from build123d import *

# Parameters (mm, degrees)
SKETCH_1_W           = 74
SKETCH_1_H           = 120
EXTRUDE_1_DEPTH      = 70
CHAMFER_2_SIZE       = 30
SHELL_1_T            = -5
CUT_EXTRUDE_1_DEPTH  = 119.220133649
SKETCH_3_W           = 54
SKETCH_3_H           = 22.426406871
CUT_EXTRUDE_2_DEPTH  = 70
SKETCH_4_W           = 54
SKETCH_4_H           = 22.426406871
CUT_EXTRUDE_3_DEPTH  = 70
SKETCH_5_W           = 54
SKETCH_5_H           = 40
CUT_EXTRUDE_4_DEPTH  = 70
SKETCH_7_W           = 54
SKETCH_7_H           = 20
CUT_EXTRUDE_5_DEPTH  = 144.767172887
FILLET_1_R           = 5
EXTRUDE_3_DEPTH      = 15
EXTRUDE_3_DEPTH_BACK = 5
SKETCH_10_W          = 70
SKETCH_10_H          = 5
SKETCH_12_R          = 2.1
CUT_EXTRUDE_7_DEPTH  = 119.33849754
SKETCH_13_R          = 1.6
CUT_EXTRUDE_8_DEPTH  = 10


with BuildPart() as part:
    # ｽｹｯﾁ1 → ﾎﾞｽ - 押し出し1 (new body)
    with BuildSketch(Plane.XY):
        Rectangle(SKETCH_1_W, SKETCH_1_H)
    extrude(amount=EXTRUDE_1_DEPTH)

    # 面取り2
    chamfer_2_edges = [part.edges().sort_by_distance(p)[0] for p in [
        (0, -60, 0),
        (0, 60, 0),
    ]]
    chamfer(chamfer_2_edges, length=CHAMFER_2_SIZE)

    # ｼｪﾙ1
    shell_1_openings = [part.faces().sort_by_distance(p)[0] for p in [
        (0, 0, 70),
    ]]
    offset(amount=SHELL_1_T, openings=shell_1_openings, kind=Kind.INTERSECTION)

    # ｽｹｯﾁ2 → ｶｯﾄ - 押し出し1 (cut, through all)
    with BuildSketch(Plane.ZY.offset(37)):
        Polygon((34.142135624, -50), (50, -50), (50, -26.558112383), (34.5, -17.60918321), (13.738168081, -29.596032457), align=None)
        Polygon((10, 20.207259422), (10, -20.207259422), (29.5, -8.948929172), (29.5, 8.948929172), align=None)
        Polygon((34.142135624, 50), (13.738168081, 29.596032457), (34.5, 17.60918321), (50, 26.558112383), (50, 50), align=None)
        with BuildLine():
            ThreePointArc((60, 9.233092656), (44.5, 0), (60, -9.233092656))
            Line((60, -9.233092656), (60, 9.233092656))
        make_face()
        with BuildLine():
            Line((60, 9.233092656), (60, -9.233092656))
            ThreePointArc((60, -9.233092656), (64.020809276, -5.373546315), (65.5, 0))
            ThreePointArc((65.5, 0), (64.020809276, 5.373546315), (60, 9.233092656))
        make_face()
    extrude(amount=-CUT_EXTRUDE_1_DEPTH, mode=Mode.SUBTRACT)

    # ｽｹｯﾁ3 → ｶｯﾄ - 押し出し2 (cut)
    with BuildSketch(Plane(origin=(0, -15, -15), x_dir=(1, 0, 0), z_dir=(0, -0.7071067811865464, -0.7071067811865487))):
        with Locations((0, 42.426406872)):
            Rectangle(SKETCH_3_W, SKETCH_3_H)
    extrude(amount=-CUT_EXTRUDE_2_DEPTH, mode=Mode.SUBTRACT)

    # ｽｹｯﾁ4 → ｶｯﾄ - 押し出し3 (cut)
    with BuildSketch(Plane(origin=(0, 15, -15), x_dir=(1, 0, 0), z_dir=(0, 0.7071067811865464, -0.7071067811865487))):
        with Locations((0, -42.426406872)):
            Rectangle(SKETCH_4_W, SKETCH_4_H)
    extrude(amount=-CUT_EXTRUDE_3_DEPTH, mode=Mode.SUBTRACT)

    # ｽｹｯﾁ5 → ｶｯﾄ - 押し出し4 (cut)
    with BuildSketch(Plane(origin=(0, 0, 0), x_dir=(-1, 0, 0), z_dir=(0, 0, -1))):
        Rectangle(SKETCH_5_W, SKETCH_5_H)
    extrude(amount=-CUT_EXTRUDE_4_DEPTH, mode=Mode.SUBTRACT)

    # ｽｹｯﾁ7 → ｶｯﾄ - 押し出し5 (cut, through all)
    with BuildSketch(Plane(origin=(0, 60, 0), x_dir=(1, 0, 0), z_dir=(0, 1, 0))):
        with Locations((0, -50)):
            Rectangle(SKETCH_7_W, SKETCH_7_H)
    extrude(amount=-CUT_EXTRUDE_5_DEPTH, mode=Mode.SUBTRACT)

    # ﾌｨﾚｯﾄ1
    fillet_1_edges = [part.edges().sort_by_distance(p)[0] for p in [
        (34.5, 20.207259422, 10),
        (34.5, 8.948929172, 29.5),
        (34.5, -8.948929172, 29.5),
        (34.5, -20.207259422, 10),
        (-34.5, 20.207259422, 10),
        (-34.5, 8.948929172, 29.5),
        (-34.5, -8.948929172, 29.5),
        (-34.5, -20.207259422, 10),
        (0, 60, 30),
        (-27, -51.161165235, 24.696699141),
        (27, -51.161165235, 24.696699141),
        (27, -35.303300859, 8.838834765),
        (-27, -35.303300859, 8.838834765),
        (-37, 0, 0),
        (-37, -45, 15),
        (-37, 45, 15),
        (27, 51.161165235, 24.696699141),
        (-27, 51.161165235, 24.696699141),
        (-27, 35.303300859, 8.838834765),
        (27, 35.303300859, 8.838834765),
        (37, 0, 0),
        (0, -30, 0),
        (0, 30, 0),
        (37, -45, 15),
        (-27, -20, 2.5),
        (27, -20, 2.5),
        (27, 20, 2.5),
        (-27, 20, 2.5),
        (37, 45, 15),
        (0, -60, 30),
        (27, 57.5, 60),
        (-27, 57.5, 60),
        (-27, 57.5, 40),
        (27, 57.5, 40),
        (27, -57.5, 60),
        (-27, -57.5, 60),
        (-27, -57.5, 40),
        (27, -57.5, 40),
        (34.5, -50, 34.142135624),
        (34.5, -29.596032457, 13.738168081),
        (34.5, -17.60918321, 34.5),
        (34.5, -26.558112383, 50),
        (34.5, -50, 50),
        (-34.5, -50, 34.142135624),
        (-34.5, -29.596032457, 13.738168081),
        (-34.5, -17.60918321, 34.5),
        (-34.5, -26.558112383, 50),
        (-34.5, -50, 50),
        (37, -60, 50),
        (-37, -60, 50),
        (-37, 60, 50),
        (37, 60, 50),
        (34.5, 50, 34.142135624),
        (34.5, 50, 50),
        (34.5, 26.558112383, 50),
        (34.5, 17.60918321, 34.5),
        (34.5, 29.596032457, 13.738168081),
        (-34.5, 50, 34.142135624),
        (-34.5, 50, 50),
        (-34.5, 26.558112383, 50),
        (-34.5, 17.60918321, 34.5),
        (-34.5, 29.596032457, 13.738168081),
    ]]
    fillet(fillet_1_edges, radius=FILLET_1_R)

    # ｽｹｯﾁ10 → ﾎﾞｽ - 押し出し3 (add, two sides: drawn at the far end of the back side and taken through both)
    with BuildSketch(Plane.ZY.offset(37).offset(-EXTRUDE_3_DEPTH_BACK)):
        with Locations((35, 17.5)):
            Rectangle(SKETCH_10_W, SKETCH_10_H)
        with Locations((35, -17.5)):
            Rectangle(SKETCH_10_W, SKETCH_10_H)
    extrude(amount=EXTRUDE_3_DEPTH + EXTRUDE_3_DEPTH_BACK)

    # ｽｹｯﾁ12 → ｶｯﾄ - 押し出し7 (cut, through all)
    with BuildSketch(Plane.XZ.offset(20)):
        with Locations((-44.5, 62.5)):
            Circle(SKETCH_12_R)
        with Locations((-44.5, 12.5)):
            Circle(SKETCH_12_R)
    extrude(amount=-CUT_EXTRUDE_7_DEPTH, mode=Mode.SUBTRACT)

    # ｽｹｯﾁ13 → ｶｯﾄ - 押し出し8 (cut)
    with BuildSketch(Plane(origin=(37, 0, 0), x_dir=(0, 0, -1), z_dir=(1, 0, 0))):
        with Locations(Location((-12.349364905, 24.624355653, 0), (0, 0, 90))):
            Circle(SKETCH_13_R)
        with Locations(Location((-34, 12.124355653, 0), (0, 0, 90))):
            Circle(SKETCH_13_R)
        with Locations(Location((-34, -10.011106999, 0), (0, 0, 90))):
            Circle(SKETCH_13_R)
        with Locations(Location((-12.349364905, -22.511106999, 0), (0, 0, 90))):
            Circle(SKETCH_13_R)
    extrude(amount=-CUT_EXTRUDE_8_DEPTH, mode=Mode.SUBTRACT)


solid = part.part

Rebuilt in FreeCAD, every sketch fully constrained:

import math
import FreeCAD as App
import Part
import Sketcher
Q = App.Units.Quantity


def edges_at(feature, points):
    """Names of the edges that pass closest to the given points."""
    edges = feature.Shape.Edges
    near = lambda p: min(range(len(edges)), key=lambda i: edges[i].distToShape(Part.Vertex(*p))[0])
    return sorted({f"Edge{near(p) + 1}" for p in points})


def faces_at(feature, points):
    """Names of the faces that lie closest to the given points."""
    faces = feature.Shape.Faces
    near = lambda p: min(range(len(faces)), key=lambda i: faces[i].distToShape(Part.Vertex(*p))[0])
    return sorted({f"Face{near(p) + 1}" for p in points})


def add_polygon(sketch, points):
    """Adds a closed chain of lines whose ends are joined by coincident constraints."""
    first, n = sketch.GeometryCount, len(points)
    for a, b in zip(points, points[1:] + points[:1]):
        sketch.addGeometry(Part.LineSegment(App.Vector(*a, 0), App.Vector(*b, 0)), False)
    for i in range(n):
        sketch.addConstraint(Sketcher.Constraint("Coincident", first + i, 2, first + (i + 1) % n, 1))

doc = App.newDocument("Part")
body = doc.addObject("PartDesign::Body", "Body")

# Sketch on XY plane
sketch1 = body.newObject("Sketcher::SketchObject", "Sketch")
sketch1.AttachmentSupport = (doc.getObject("XY_Plane"), [""])
sketch1.MapMode = "FlatFace"
add_polygon(sketch1, [(-37, 60), (-37, -60), (37, -60), (37, 60)])  # lines 0-3
sketch1.addConstraint(Sketcher.Constraint("Vertical", 0))
sketch1.addConstraint(Sketcher.Constraint("Horizontal", 1))
sketch1.addConstraint(Sketcher.Constraint("Vertical", 2))
sketch1.addConstraint(Sketcher.Constraint("Horizontal", 3))
sketch1.addConstraint(Sketcher.Constraint("Symmetric", 0, 2, 2, 2, -1, 1))
sketch1.addConstraint(Sketcher.Constraint("DistanceX", 1, 1, 1, 2, Q("74 mm")))
sketch1.addConstraint(Sketcher.Constraint("DistanceY", 0, 2, 0, 1, Q("120 mm")))
pad1 = body.newObject("PartDesign::Pad", "Pad")
pad1.Profile = sketch1
pad1.Length = 70
doc.recompute()

chamfer = body.newObject("PartDesign::Chamfer", "Chamfer")
chamfer.Base = (pad1, edges_at(pad1, [(0, -60, 0), (0, 60, 0)]))
chamfer.Size = 30
doc.recompute()

thickness = body.newObject("PartDesign::Thickness", "Thickness")
thickness.Base = (chamfer, faces_at(chamfer, [(0, 0, 70)]))
thickness.Value = 5
thickness.Reversed = True
thickness.Join = "Intersection"

# Sketch on YZ plane
sketch2 = body.newObject("Sketcher::SketchObject", "Sketch001")
sketch2.AttachmentSupport = (doc.getObject("YZ_Plane"), [""])
sketch2.MapMode = "FlatFace"
sketch2.AttachmentOffset = App.Placement(App.Vector(0, 0, -37), App.Rotation())
add_polygon(sketch2, [(-50, 34), (-50, 50), (-27, 50), (-18, 34), (-30, 14)])  # lines 0-4
add_polygon(sketch2, [(20, 10), (-20, 10), (-9, 30), (9, 30)])  # lines 5-8
add_polygon(sketch2, [(50, 34), (30, 14), (18, 34), (27, 50), (50, 50)])  # lines 9-13
sketch2.addGeometry(Part.ArcOfCircle(Part.Circle(App.Vector(0, 55, 0), App.Vector(0, 0, 1), 10), math.radians(152), math.radians(388)), False)  # 14
sketch2.addGeometry(Part.ArcOfCircle(Part.Circle(App.Vector(0, 55, 0), App.Vector(0, 0, 1), 11), math.radians(90), math.radians(152)), False)  # 15
sketch2.addGeometry(Part.ArcOfCircle(Part.Circle(App.Vector(0, 55, 0), App.Vector(0, 0, 1), 11), math.radians(28), math.radians(90)), False)  # 16
sketch2.addConstraint(Sketcher.Constraint("Tangent", 14, 1, 15, 2))
sketch2.addConstraint(Sketcher.Constraint("Tangent", 15, 1, 16, 2))
sketch2.addConstraint(Sketcher.Constraint("Tangent", 16, 1, 14, 2))
sketch2.addConstraint(Sketcher.Constraint("Vertical", 0))
sketch2.addConstraint(Sketcher.Constraint("Horizontal", 1))
sketch2.addConstraint(Sketcher.Constraint("Horizontal", 5))
sketch2.addConstraint(Sketcher.Constraint("Horizontal", 7))
sketch2.addConstraint(Sketcher.Constraint("Horizontal", 12))
sketch2.addConstraint(Sketcher.Constraint("Vertical", 13))
sketch2.addConstraint(Sketcher.Constraint("Symmetric", 3, 2, 9, 2, -2))
sketch2.addConstraint(Sketcher.Constraint("Symmetric", 2, 2, 10, 2, -2))
sketch2.addConstraint(Sketcher.Constraint("Symmetric", 1, 2, 11, 2, -2))
sketch2.addConstraint(Sketcher.Constraint("Symmetric", 4, 2, 13, 2, -2))
sketch2.addConstraint(Sketcher.Constraint("Symmetric", 14, 1, 16, 1, -2))
sketch2.addConstraint(Sketcher.Constraint("PointOnObject", 15, 1, -2))
sketch2.addConstraint(Sketcher.Constraint("Parallel", 3, 6))
sketch2.addConstraint(Sketcher.Constraint("Parallel", 2, 8))
sketch2.addConstraint(Sketcher.Constraint("Perpendicular", 4, 9))
sketch2.addConstraint(Sketcher.Constraint("Parallel", 8, 10))
sketch2.addConstraint(Sketcher.Constraint("Radius", 14, Q("10.5 mm")))
sketch2.addConstraint(Sketcher.Constraint("Angle", 2, Q("-60 deg")))
sketch2.addConstraint(Sketcher.Constraint("DistanceY", -1, 1, 14, 3, Q("55 mm")))
sketch2.addConstraint(Sketcher.Constraint("DistanceX", 0, 2, -1, 1, Q("50 mm")))
sketch2.addConstraint(Sketcher.Constraint("DistanceY", -1, 1, 0, 2, Q("50 mm")))
sketch2.addConstraint(Sketcher.Constraint("DistanceY", -1, 1, 5, 2, Q("10 mm")))
sketch2.addConstraint(Sketcher.Constraint("DistanceY", -1, 1, 14, 1, Q("60 mm")))
sketch2.addConstraint(Sketcher.Constraint("DistanceY", 6, 2, 2, 2, Q("5 mm")))
sketch2.addConstraint(Sketcher.Constraint("DistanceY", -1, 1, 2, 2, Q("34.5 mm")))
sketch2.addConstraint(Sketcher.Constraint("Distance", 3, Q("23.973698 mm")))
sketch2.addConstraint(Sketcher.Constraint("DistanceX", 5, 2, 5, 1, Q("40.414519 mm")))
sketch2.addConstraint(Sketcher.Constraint("DistanceX", 1, 1, 1, 2, Q("23.441888 mm")))
sketch2.addConstraint(Sketcher.Constraint("DistanceX", 5, 2, -1, 1, Q("20.207259 mm")))
pocket1 = body.newObject("PartDesign::Pocket", "Pocket")
pocket1.Profile = sketch2
pocket1.Type = "ThroughAll"
pocket1.Reversed = True

# Sketch on an angled plane
sketch3 = body.newObject("Sketcher::SketchObject", "Sketch002")
sketch3.Placement = App.Placement(App.Vector(0, -15, -15), App.Rotation(App.Vector(1, 0, 0), App.Vector(0, -0.707106781, 0.707106781), App.Vector(0, -0.707106781, -0.707106781), "ZXY"))
add_polygon(sketch3, [(-27, 54), (-27, 31), (27, 31), (27, 54)])  # lines 0-3
sketch3.addConstraint(Sketcher.Constraint("Vertical", 0))
sketch3.addConstraint(Sketcher.Constraint("Horizontal", 1))
sketch3.addConstraint(Sketcher.Constraint("Vertical", 2))
sketch3.addConstraint(Sketcher.Constraint("Horizontal", 3))
sketch3.addConstraint(Sketcher.Constraint("DistanceX", 1, 1, 1, 2, Q("54 mm")))
sketch3.addConstraint(Sketcher.Constraint("DistanceX", 0, 2, -1, 1, Q("27 mm")))
sketch3.addConstraint(Sketcher.Constraint("DistanceY", 0, 2, 0, 1, Q("22.426407 mm")))
sketch3.addConstraint(Sketcher.Constraint("DistanceY", -1, 1, 2, 2, Q("53.63961 mm")))
pocket2 = body.newObject("PartDesign::Pocket", "Pocket001")
pocket2.Profile = sketch3
pocket2.Length = 70

# Sketch on an angled plane
sketch4 = body.newObject("Sketcher::SketchObject", "Sketch003")
sketch4.Placement = App.Placement(App.Vector(0, 15, -15), App.Rotation(App.Vector(1, 0, 0), App.Vector(0, -0.707106781, -0.707106781), App.Vector(0, 0.707106781, -0.707106781), "ZXY"))
add_polygon(sketch4, [(-27, -31), (-27, -54), (27, -54), (27, -31)])  # lines 0-3
sketch4.addConstraint(Sketcher.Constraint("Vertical", 0))
sketch4.addConstraint(Sketcher.Constraint("Horizontal", 1))
sketch4.addConstraint(Sketcher.Constraint("Vertical", 2))
sketch4.addConstraint(Sketcher.Constraint("Horizontal", 3))
sketch4.addConstraint(Sketcher.Constraint("DistanceX", 1, 1, 1, 2, Q("54 mm")))
sketch4.addConstraint(Sketcher.Constraint("DistanceX", 0, 2, -1, 1, Q("27 mm")))
sketch4.addConstraint(Sketcher.Constraint("DistanceY", 0, 2, 0, 1, Q("22.426407 mm")))
sketch4.addConstraint(Sketcher.Constraint("DistanceY", 0, 2, -1, 1, Q("53.63961 mm")))
pocket3 = body.newObject("PartDesign::Pocket", "Pocket002")
pocket3.Profile = sketch4
pocket3.Length = 70

# Sketch on XY plane
sketch5 = body.newObject("Sketcher::SketchObject", "Sketch004")
sketch5.AttachmentSupport = (doc.getObject("XY_Plane"), [""])
sketch5.MapMode = "FlatFace"
add_polygon(sketch5, [(27, 20), (27, -20), (-27, -20), (-27, 20)])  # lines 0-3
sketch5.addConstraint(Sketcher.Constraint("Vertical", 0))
sketch5.addConstraint(Sketcher.Constraint("Horizontal", 1))
sketch5.addConstraint(Sketcher.Constraint("Vertical", 2))
sketch5.addConstraint(Sketcher.Constraint("Horizontal", 3))
sketch5.addConstraint(Sketcher.Constraint("Symmetric", 0, 2, 2, 2, -1, 1))
sketch5.addConstraint(Sketcher.Constraint("DistanceX", 1, 2, 1, 1, Q("54 mm")))
sketch5.addConstraint(Sketcher.Constraint("DistanceY", 0, 2, 0, 1, Q("40 mm")))
pocket4 = body.newObject("PartDesign::Pocket", "Pocket003")
pocket4.Profile = sketch5
pocket4.Length = 70
pocket4.Reversed = True

# Sketch on XZ plane
sketch6 = body.newObject("Sketcher::SketchObject", "Sketch005")
sketch6.AttachmentSupport = (doc.getObject("XZ_Plane"), [""])
sketch6.MapMode = "FlatFace"
sketch6.AttachmentOffset = App.Placement(App.Vector(0, 0, -60), App.Rotation())
add_polygon(sketch6, [(-27, 40), (-27, 60), (27, 60), (27, 40)])  # lines 0-3
sketch6.addConstraint(Sketcher.Constraint("Vertical", 0))
sketch6.addConstraint(Sketcher.Constraint("Horizontal", 1))
sketch6.addConstraint(Sketcher.Constraint("Vertical", 2))
sketch6.addConstraint(Sketcher.Constraint("Horizontal", 3))
sketch6.addConstraint(Sketcher.Constraint("DistanceX", 1, 1, 1, 2, Q("54 mm")))
sketch6.addConstraint(Sketcher.Constraint("DistanceY", 0, 1, 0, 2, Q("20 mm")))
sketch6.addConstraint(Sketcher.Constraint("DistanceX", 0, 2, -1, 1, Q("27 mm")))
sketch6.addConstraint(Sketcher.Constraint("DistanceY", -1, 1, 0, 2, Q("60 mm")))
pocket5 = body.newObject("PartDesign::Pocket", "Pocket004")
pocket5.Profile = sketch6
pocket5.Type = "ThroughAll"
pocket5.Reversed = True
doc.recompute()

fillet = body.newObject("PartDesign::Fillet", "Fillet")
fillet.Base = (pocket5, edges_at(pocket5, [
    (34.5, 20.207, 10),
    (34.5, 8.949, 29.5),
    (34.5, -8.949, 29.5),
    (34.5, -20.207, 10),
    (-34.5, 20.207, 10),
    (-34.5, 8.949, 29.5),
    (-34.5, -8.949, 29.5),
    (-34.5, -20.207, 10),
    (0, 60, 30),
    (-27, -51.161, 24.697),
    (27, -51.161, 24.697),
    (27, -35.303, 8.839),
    (-27, -35.303, 8.839),
    (-37, 0, 0),
    (-37, -45, 15),
    (-37, 45, 15),
    (27, 51.161, 24.697),
    (-27, 51.161, 24.697),
    (-27, 35.303, 8.839),
    (27, 35.303, 8.839),
    (37, 0, 0),
    (0, -30, 0),
    (0, 30, 0),
    (37, -45, 15),
    (-27, -20, 2.5),
    (27, -20, 2.5),
    (27, 20, 2.5),
    (-27, 20, 2.5),
    (37, 45, 15),
    (0, -60, 30),
    (27, 57.5, 60),
    (-27, 57.5, 60),
    (-27, 57.5, 40),
    (27, 57.5, 40),
    (27, -57.5, 60),
    (-27, -57.5, 60),
    (-27, -57.5, 40),
    (27, -57.5, 40),
    (34.5, -50, 34.142),
    (34.5, -29.596, 13.738),
    (34.5, -17.609, 34.5),
    (34.5, -26.558, 50),
    (34.5, -50, 50),
    (-34.5, -50, 34.142),
    (-34.5, -29.596, 13.738),
    (-34.5, -17.609, 34.5),
    (-34.5, -26.558, 50),
    (-34.5, -50, 50),
    (37, -60, 50),
    (-37, -60, 50),
    (-37, 60, 50),
    (37, 60, 50),
    (34.5, 50, 34.142),
    (34.5, 50, 50),
    (34.5, 26.558, 50),
    (34.5, 17.609, 34.5),
    (34.5, 29.596, 13.738),
    (-34.5, 50, 34.142),
    (-34.5, 50, 50),
    (-34.5, 26.558, 50),
    (-34.5, 17.609, 34.5),
    (-34.5, 29.596, 13.738),
]))
fillet.Radius = 5

# Sketch on YZ plane
sketch7 = body.newObject("Sketcher::SketchObject", "Sketch006")
sketch7.AttachmentSupport = (doc.getObject("YZ_Plane"), [""])
sketch7.MapMode = "FlatFace"
sketch7.AttachmentOffset = App.Placement(App.Vector(0, 0, -37), App.Rotation())
add_polygon(sketch7, [(20, 0), (15, 0), (15, 70), (20, 70)])  # lines 0-3
add_polygon(sketch7, [(-15, 0), (-20, 0), (-20, 70), (-15, 70)])  # lines 4-7
sketch7.addConstraint(Sketcher.Constraint("Horizontal", 0))
sketch7.addConstraint(Sketcher.Constraint("Vertical", 1))
sketch7.addConstraint(Sketcher.Constraint("Horizontal", 2))
sketch7.addConstraint(Sketcher.Constraint("Vertical", 3))
sketch7.addConstraint(Sketcher.Constraint("Horizontal", 4))
sketch7.addConstraint(Sketcher.Constraint("Vertical", 5))
sketch7.addConstraint(Sketcher.Constraint("Horizontal", 6))
sketch7.addConstraint(Sketcher.Constraint("Vertical", 7))
sketch7.addConstraint(Sketcher.Constraint("Symmetric", 3, 2, 4, 2, -1, 1))
sketch7.addConstraint(Sketcher.Constraint("Symmetric", 1, 2, 6, 2, -2))
sketch7.addConstraint(Sketcher.Constraint("PointOnObject", 0, 2, -1))
sketch7.addConstraint(Sketcher.Constraint("DistanceX", 0, 2, 0, 1, Q("5 mm")))
sketch7.addConstraint(Sketcher.Constraint("DistanceY", 1, 1, 1, 2, Q("70 mm")))
sketch7.addConstraint(Sketcher.Constraint("DistanceX", -1, 1, 0, 2, Q("15 mm")))
pad2 = body.newObject("PartDesign::Pad", "Pad001")
pad2.Profile = sketch7
pad2.Type = "TwoLengths"
pad2.Length = 15
pad2.Length2 = 5
pad2.Reversed = True

# Sketch on XZ plane
sketch8 = body.newObject("Sketcher::SketchObject", "Sketch007")
sketch8.AttachmentSupport = (doc.getObject("XZ_Plane"), [""])
sketch8.MapMode = "FlatFace"
sketch8.AttachmentOffset = App.Placement(App.Vector(0, 0, 20), App.Rotation())
sketch8.addGeometry(Part.Circle(App.Vector(-44.5, 62.5, 0), App.Vector(0, 0, 1), 2.1), False)
sketch8.addGeometry(Part.Circle(App.Vector(-44.5, 12.5, 0), App.Vector(0, 0, 1), 2.1), False)
sketch8.addConstraint(Sketcher.Constraint("Equal", 0, 1))
sketch8.addConstraint(Sketcher.Constraint("Vertical", 0, 3, 1, 3))
sketch8.addConstraint(Sketcher.Constraint("Diameter", 0, Q("4.2 mm")))
sketch8.addConstraint(Sketcher.Constraint("DistanceY", 1, 3, 0, 3, Q("50 mm")))
sketch8.addConstraint(Sketcher.Constraint("DistanceX", 0, 3, -1, 1, Q("44.5 mm")))
sketch8.addConstraint(Sketcher.Constraint("DistanceY", -1, 1, 0, 3, Q("62.5 mm")))
pocket6 = body.newObject("PartDesign::Pocket", "Pocket005")
pocket6.Profile = sketch8
pocket6.Type = "ThroughAll"

# Sketch on YZ plane
sketch9 = body.newObject("Sketcher::SketchObject", "Sketch008")
sketch9.AttachmentSupport = (doc.getObject("YZ_Plane"), [""])
sketch9.MapMode = "FlatFace"
sketch9.AttachmentOffset = App.Placement(App.Vector(0, 0, 37), App.Rotation())
sketch9.addGeometry(Part.Circle(App.Vector(24.6, 12.3, 0), App.Vector(0, 0, 1), 1.6), False)
sketch9.addGeometry(Part.Circle(App.Vector(12.1, 34, 0), App.Vector(0, 0, 1), 1.6), False)
sketch9.addGeometry(Part.Circle(App.Vector(-10, 34, 0), App.Vector(0, 0, 1), 1.6), False)
sketch9.addGeometry(Part.Circle(App.Vector(-22.5, 12.3, 0), App.Vector(0, 0, 1), 1.6), False)
sketch9.addConstraint(Sketcher.Constraint("Equal", 0, 1))
sketch9.addConstraint(Sketcher.Constraint("Equal", 1, 2))
sketch9.addConstraint(Sketcher.Constraint("Equal", 2, 3))
sketch9.addConstraint(Sketcher.Constraint("Horizontal", 1, 3, 2, 3))
sketch9.addConstraint(Sketcher.Constraint("Horizontal", 0, 3, 3, 3))
sketch9.addConstraint(Sketcher.Constraint("Diameter", 0, Q("3.2 mm")))
sketch9.addConstraint(Sketcher.Constraint("DistanceY", -1, 1, 1, 3, Q("34 mm")))
sketch9.addConstraint(Sketcher.Constraint("DistanceX", 1, 3, 0, 3, Q("12.5 mm")))
sketch9.addConstraint(Sketcher.Constraint("DistanceX", 3, 3, 2, 3, Q("12.5 mm")))
sketch9.addConstraint(Sketcher.Constraint("DistanceX", -1, 1, 0, 3, Q("24.624356 mm")))
sketch9.addConstraint(Sketcher.Constraint("DistanceY", -1, 1, 0, 3, Q("12.349365 mm")))
sketch9.addConstraint(Sketcher.Constraint("DistanceX", 2, 3, -1, 1, Q("10.011107 mm")))
pocket7 = body.newObject("PartDesign::Pocket", "Pocket006")
pocket7.Profile = sketch9
pocket7.Length = 10

doc.recompute()
